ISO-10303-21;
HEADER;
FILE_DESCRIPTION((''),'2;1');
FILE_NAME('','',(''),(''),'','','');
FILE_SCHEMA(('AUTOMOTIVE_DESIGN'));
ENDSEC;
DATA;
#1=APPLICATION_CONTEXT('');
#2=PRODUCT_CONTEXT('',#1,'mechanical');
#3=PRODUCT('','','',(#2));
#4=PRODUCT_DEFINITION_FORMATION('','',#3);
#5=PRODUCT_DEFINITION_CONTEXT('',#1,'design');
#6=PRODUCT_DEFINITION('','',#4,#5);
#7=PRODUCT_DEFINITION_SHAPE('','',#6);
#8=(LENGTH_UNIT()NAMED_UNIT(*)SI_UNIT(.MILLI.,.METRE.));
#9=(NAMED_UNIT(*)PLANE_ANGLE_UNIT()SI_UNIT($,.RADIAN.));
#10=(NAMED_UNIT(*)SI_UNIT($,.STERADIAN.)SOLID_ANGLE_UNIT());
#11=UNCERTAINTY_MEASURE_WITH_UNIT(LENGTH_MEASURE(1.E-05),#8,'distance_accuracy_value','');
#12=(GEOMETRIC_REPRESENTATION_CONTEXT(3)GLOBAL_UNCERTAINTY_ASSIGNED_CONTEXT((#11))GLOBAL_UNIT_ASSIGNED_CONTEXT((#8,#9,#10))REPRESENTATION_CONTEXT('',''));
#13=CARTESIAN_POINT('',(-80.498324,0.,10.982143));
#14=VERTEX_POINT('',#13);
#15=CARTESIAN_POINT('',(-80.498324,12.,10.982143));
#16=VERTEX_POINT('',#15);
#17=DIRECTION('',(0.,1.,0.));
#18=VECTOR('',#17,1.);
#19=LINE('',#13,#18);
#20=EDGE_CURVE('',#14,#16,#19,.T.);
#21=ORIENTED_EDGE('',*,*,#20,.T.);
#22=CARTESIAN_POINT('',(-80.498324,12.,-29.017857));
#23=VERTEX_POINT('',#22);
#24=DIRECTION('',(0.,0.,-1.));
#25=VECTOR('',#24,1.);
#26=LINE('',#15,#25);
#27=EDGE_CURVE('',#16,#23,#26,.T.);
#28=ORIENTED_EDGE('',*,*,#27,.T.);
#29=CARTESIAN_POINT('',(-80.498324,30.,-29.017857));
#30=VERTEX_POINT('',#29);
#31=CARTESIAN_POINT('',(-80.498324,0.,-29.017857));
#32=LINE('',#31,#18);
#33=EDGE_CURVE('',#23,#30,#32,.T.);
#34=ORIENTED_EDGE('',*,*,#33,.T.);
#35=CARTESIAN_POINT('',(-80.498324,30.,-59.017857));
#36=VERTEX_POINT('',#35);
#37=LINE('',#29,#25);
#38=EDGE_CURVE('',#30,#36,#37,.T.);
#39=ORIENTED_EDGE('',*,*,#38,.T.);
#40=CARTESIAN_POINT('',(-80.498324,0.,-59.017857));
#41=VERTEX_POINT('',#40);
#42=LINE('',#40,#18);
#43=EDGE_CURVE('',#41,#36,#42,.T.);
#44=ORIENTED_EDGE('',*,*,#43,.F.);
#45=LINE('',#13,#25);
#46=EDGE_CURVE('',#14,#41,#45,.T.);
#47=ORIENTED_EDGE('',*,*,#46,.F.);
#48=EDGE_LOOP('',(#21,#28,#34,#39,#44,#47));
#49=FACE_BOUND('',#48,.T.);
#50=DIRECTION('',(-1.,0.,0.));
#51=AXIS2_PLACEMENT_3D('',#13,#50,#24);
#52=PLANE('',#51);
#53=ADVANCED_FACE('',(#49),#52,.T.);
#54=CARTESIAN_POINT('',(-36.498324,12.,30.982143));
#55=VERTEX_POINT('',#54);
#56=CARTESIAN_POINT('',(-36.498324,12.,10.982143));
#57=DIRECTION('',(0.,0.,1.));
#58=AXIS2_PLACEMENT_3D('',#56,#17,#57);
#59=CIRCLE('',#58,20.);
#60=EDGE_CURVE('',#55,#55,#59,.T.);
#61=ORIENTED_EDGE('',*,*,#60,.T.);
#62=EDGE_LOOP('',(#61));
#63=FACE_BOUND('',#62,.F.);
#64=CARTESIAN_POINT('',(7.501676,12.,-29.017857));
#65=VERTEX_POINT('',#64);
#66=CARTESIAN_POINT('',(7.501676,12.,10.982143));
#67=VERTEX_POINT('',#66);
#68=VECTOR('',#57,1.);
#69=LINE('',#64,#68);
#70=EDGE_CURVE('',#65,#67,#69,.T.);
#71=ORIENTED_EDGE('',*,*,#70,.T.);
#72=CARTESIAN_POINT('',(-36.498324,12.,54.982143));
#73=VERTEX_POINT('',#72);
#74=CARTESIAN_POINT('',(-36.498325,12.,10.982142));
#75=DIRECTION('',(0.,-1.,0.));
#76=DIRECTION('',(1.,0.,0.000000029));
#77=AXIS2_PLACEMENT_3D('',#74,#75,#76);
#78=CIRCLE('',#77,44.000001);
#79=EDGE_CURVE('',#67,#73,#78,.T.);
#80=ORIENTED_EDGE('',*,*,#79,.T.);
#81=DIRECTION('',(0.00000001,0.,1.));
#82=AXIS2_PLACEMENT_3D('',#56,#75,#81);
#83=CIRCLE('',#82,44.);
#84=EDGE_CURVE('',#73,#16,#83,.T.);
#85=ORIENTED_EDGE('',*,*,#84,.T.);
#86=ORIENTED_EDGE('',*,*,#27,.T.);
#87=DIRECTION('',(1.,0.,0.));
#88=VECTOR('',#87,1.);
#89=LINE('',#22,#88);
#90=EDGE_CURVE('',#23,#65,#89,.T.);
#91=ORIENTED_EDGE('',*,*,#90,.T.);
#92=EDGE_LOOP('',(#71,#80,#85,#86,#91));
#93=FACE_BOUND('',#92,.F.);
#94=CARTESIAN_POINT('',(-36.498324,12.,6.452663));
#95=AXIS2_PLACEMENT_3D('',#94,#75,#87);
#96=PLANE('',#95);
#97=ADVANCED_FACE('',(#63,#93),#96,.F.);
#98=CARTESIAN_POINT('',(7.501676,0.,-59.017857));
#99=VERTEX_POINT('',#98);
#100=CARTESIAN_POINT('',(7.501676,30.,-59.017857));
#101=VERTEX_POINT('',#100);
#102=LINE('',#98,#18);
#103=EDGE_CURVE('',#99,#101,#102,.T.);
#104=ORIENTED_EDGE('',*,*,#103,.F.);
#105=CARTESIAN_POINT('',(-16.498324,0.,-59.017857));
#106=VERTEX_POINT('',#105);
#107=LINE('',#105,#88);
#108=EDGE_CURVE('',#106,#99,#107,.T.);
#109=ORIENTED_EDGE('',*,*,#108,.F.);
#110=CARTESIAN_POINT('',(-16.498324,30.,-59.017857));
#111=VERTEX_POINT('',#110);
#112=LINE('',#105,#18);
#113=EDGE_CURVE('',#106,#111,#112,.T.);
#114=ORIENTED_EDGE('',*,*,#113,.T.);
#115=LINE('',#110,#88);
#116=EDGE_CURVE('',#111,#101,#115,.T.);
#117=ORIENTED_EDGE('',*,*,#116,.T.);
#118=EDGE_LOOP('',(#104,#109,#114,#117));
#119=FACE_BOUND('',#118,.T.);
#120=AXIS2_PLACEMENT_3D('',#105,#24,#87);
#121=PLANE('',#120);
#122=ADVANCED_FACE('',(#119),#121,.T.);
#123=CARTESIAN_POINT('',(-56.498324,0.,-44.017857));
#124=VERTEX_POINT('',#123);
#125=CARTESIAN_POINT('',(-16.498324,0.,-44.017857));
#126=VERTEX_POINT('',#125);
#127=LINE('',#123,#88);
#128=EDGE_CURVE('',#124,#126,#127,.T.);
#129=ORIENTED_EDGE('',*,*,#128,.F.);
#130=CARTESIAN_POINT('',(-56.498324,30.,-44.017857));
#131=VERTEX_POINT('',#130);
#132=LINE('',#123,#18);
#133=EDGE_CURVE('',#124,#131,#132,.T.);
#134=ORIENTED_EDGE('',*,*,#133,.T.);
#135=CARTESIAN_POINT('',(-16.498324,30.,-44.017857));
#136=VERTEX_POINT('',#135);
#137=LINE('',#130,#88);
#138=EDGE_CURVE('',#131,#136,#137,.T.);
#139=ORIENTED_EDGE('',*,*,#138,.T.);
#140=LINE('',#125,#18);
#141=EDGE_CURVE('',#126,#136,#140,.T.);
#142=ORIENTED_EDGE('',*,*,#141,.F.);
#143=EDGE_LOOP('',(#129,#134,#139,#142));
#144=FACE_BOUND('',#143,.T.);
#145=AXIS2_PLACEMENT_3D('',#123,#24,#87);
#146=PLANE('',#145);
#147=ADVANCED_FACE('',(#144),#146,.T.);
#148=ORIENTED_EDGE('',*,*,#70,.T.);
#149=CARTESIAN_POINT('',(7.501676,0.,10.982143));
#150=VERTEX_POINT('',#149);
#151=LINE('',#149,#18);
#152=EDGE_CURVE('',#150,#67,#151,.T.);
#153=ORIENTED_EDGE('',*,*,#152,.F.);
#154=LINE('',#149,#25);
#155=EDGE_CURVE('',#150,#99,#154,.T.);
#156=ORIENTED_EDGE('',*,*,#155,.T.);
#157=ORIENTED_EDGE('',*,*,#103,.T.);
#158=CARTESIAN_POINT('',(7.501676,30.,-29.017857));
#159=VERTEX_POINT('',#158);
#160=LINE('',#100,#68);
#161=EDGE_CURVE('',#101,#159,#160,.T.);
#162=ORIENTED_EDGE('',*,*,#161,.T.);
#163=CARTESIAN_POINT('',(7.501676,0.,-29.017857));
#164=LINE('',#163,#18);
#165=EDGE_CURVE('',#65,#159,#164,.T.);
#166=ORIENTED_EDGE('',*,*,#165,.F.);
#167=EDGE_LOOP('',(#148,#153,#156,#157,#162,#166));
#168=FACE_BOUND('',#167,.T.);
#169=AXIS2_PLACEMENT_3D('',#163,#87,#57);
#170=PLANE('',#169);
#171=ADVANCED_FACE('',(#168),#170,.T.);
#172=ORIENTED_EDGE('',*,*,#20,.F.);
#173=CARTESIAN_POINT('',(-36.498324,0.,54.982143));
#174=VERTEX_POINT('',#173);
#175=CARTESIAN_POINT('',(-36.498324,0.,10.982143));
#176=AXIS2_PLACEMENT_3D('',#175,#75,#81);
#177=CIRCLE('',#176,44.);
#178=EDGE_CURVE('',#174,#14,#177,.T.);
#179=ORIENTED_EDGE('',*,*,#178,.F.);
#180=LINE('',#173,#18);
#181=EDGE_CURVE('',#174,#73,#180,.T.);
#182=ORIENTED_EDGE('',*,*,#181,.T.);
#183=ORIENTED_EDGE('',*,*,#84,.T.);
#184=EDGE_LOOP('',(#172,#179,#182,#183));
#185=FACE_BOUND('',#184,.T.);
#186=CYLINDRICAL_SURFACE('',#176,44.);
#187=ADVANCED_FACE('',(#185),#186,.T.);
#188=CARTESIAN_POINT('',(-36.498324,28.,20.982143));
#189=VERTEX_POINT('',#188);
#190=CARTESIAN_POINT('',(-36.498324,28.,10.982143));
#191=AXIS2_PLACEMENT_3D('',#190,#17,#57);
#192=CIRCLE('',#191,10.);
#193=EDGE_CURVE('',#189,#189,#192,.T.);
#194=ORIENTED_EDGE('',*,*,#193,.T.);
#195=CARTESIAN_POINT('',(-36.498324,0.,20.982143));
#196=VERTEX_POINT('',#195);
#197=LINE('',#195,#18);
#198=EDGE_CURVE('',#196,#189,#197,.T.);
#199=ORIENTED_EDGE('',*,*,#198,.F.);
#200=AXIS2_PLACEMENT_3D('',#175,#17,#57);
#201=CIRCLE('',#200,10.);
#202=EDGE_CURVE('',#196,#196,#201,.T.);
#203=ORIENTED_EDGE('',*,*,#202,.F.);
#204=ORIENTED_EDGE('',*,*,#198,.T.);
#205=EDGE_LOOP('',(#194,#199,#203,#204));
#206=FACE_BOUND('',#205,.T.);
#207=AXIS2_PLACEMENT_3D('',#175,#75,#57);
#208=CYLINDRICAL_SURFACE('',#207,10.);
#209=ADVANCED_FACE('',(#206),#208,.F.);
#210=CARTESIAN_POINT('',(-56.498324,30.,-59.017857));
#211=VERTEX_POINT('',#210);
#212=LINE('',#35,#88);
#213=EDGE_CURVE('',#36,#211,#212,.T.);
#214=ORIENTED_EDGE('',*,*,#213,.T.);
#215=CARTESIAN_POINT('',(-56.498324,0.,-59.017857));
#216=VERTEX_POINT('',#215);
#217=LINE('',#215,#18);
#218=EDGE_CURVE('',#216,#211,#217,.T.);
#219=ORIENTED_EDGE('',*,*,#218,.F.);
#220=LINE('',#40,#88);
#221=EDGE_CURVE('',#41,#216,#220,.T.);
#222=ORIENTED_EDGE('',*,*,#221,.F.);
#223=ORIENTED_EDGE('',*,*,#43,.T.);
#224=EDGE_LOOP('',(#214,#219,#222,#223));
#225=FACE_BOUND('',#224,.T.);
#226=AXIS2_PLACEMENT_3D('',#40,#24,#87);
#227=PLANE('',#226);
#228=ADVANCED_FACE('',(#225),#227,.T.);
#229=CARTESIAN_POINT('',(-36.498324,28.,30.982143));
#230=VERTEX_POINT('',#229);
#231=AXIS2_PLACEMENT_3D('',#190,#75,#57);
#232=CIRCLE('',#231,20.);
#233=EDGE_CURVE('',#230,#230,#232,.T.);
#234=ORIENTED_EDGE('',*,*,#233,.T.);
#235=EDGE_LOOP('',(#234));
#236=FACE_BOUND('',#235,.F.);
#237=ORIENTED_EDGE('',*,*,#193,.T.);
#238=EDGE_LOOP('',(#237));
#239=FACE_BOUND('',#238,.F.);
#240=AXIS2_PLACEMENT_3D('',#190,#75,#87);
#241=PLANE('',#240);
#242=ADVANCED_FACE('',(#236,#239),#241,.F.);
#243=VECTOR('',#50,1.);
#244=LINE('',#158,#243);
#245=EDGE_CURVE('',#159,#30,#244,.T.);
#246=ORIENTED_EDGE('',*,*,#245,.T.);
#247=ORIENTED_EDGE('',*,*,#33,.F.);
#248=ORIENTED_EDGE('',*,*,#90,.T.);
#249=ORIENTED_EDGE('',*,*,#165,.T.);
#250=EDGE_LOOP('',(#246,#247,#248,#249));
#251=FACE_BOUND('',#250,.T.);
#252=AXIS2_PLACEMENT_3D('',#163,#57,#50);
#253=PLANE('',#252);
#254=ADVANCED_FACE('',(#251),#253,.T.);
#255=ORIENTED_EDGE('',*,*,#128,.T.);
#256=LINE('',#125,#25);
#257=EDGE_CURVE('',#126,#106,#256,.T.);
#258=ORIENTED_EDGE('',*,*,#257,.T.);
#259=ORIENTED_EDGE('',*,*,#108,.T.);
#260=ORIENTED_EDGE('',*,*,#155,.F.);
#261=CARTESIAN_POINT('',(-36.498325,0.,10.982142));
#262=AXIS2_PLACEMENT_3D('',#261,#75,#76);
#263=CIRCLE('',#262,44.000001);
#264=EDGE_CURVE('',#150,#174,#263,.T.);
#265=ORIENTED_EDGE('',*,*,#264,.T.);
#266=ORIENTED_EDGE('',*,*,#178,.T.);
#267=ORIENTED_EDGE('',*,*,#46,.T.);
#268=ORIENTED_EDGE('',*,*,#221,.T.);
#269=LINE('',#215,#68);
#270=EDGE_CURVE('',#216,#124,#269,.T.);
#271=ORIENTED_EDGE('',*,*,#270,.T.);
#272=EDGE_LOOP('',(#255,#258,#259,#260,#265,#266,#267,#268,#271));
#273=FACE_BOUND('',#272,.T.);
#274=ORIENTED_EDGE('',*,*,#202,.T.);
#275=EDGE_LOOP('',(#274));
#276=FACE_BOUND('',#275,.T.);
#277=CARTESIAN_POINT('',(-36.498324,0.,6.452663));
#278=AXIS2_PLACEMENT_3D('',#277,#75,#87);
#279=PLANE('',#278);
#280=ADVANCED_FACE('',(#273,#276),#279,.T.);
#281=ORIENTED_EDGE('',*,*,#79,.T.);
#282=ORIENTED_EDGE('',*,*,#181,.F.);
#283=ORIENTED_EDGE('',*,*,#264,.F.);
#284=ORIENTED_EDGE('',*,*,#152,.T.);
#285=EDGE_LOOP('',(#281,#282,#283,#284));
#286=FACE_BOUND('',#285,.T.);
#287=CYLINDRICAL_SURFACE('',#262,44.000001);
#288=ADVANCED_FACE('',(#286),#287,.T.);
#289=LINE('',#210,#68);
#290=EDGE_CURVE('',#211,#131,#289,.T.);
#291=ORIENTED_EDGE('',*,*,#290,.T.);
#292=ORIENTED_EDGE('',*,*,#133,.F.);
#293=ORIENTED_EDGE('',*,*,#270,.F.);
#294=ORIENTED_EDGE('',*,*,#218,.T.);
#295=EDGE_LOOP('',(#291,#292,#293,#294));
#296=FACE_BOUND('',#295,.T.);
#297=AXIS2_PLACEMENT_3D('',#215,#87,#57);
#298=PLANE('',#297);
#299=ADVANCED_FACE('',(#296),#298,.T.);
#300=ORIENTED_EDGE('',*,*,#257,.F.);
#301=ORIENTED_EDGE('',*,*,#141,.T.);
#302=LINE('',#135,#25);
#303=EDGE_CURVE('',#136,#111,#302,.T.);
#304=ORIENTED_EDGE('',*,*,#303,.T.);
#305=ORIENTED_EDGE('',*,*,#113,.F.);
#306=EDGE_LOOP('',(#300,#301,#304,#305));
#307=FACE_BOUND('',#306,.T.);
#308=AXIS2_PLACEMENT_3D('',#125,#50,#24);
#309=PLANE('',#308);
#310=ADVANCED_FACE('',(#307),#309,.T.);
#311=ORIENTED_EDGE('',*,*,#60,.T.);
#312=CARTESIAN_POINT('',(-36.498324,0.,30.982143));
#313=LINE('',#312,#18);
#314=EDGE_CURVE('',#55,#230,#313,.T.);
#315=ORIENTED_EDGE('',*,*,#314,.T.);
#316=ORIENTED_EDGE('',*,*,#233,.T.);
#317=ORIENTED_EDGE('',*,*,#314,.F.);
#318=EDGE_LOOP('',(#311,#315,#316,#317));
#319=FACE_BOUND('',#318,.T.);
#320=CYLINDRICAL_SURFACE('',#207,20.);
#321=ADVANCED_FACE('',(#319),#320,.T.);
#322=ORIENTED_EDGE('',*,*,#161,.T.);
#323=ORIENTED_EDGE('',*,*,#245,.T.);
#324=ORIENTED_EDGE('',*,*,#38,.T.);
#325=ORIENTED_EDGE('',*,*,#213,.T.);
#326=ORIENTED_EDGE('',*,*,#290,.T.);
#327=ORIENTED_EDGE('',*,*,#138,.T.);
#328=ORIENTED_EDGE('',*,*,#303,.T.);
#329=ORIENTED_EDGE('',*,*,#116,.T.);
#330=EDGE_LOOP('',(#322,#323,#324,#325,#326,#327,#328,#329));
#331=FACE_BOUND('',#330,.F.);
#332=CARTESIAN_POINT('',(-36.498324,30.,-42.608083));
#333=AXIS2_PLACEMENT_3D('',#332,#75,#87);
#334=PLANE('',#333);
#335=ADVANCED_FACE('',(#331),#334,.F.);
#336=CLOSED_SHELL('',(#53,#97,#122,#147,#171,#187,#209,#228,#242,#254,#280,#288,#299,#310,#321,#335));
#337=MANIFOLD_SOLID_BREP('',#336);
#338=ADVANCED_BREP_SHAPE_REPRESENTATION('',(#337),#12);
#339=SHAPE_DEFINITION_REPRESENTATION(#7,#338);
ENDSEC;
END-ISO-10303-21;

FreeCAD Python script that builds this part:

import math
import FreeCAD as App
import Part
import Sketcher

V = App.Vector
Q = App.Units.Quantity


def add_polygon(sketch, points):
    """Adds a closed chain of lines whose ends are joined by coincident constraints."""
    first, n = sketch.GeometryCount, len(points)
    for a, b in zip(points, points[1:] + points[:1]):
        sketch.addGeometry(Part.LineSegment(App.Vector(*a, 0), App.Vector(*b, 0)), False)
    for i in range(n):
        sketch.addConstraint(Sketcher.Constraint("Coincident", first + i, 2, first + (i + 1) % n, 1))

doc = App.newDocument("Part")
body = doc.addObject("PartDesign::Body", "Body")

# Sketch on XZ plane
sketch1 = body.newObject("Sketcher::SketchObject", "Sketch")
sketch1.AttachmentSupport = (doc.getObject("XZ_Plane"), [""])
sketch1.MapMode = "FlatFace"
add_polygon(sketch1, [(-80.498324, -29.017857), (-80.498324, -59.017857), (-56.498324, -59.017857), (-56.498324, -44.017857), (-16.498324, -44.017857), (-16.498324, -59.017857), (7.501676, -59.017857), (7.501676, -29.017857)])  # lines 0-7
sketch1.addConstraint([
    Sketcher.Constraint("Vertical", 0),
    Sketcher.Constraint("Horizontal", 1),
    Sketcher.Constraint("Vertical", 2),
    Sketcher.Constraint("Horizontal", 3),
    Sketcher.Constraint("Vertical", 4),
    Sketcher.Constraint("Horizontal", 5),
    Sketcher.Constraint("Vertical", 6),
    Sketcher.Constraint("Horizontal", 7),
    Sketcher.Constraint("Horizontal", 1, 2, 4, 2),
    Sketcher.Constraint("Equal", 1, 5),
    Sketcher.Constraint("DistanceX", 1, 1, 1, 2, Q("24 mm")),
    Sketcher.Constraint("DistanceX", 3, 1, 3, 2, Q("40 mm")),
    Sketcher.Constraint("DistanceY", 0, 2, 0, 1, Q("30 mm")),
    Sketcher.Constraint("DistanceY", 2, 1, 2, 2, Q("15 mm")),
    Sketcher.Constraint("DistanceX", 0, 2, -1, 1, Q("80.498324 mm")),
    Sketcher.Constraint("DistanceY", 0, 2, -1, 1, Q("59.017857 mm")),
])
pad1 = body.newObject("PartDesign::Pad", "Pad")
pad1.Profile = sketch1
pad1.Length = 30
pad1.Reversed = True

# Sketch on XZ plane
sketch2 = body.newObject("Sketcher::SketchObject", "Sketch001")
sketch2.AttachmentSupport = (doc.getObject("XZ_Plane"), [""])
sketch2.MapMode = "FlatFace"
sketch2.addGeometry([
    Part.ArcOfCircle(Part.Circle(V(-36.498325, 10.982142, 0), V(0, 0, 1), 44.000001), math.radians(0.000002), math.radians(89.999998)),  # 0
    Part.ArcOfCircle(Part.Circle(V(-36.498324, 10.982143, 0), V(0, 0, 1), 44), math.radians(89.999999), math.radians(180.000001)),  # 1
    Part.LineSegment(V(-80.498324, 10.982143, 0), V(-80.498324, -29.017857, 0)),  # 2
    Part.LineSegment(V(-80.498324, -29.017857, 0), V(7.501676, -29.017857, 0)),  # 3
    Part.LineSegment(V(7.501676, -29.017857, 0), V(7.501676, 10.982143, 0)),  # 4
    Part.Circle(V(-36.498324, 10.982143, 0), V(0, 0, 1), 20),  # 5
], False)
sketch2.addConstraint([
    Sketcher.Constraint("Tangent", 0, 2, 1, 1),
    Sketcher.Constraint("Tangent", 1, 2, 2, 1),
    Sketcher.Constraint("Coincident", 2, 2, 3, 1),
    Sketcher.Constraint("Coincident", 3, 2, 4, 1),
    Sketcher.Constraint("Tangent", 4, 2, 0, 1),
    Sketcher.Constraint("Vertical", 2),
    Sketcher.Constraint("Horizontal", 3),
    Sketcher.Constraint("Vertical", 4),
    Sketcher.Constraint("Coincident", 5, 3, 0, 3),
    Sketcher.Constraint("Equal", 0, 1),
    Sketcher.Constraint("Vertical", 5, 3, 0, 2),
    Sketcher.Constraint("Diameter", 5, Q("40 mm")),
    Sketcher.Constraint("Radius", 0, Q("44.000001 mm")),
    Sketcher.Constraint("DistanceY", 2, 2, 2, 1, Q("40 mm")),
    Sketcher.Constraint("DistanceY", -1, 1, 0, 3, Q("10.982142 mm")),
    Sketcher.Constraint("DistanceX", 0, 3, -1, 1, Q("36.498325 mm")),
])
pad2 = body.newObject("PartDesign::Pad", "Pad001")
pad2.Profile = sketch2
pad2.Length = 12
pad2.Reversed = True

# Sketch on XZ plane
sketch3 = body.newObject("Sketcher::SketchObject", "Sketch002")
sketch3.AttachmentSupport = (doc.getObject("XZ_Plane"), [""])
sketch3.MapMode = "FlatFace"
sketch3.addGeometry([
    Part.Circle(V(-36.498324, 10.982143, 0), V(0, 0, 1), 20),
    Part.Circle(V(-36.498324, 10.982143, 0), V(0, 0, 1), 10),
], False)
sketch3.addConstraint([
    Sketcher.Constraint("Coincident", 1, 3, 0, 3),
    Sketcher.Constraint("Diameter", 0, Q("40 mm")),
    Sketcher.Constraint("Diameter", 1, Q("20 mm")),
    Sketcher.Constraint("DistanceX", 0, 3, -1, 1, Q("36.498324 mm")),
    Sketcher.Constraint("DistanceY", -1, 1, 0, 3, Q("10.982143 mm")),
])
pad3 = body.newObject("PartDesign::Pad", "Pad002")
pad3.Profile = sketch3
pad3.Length = 28
pad3.Reversed = True

doc.recompute()
